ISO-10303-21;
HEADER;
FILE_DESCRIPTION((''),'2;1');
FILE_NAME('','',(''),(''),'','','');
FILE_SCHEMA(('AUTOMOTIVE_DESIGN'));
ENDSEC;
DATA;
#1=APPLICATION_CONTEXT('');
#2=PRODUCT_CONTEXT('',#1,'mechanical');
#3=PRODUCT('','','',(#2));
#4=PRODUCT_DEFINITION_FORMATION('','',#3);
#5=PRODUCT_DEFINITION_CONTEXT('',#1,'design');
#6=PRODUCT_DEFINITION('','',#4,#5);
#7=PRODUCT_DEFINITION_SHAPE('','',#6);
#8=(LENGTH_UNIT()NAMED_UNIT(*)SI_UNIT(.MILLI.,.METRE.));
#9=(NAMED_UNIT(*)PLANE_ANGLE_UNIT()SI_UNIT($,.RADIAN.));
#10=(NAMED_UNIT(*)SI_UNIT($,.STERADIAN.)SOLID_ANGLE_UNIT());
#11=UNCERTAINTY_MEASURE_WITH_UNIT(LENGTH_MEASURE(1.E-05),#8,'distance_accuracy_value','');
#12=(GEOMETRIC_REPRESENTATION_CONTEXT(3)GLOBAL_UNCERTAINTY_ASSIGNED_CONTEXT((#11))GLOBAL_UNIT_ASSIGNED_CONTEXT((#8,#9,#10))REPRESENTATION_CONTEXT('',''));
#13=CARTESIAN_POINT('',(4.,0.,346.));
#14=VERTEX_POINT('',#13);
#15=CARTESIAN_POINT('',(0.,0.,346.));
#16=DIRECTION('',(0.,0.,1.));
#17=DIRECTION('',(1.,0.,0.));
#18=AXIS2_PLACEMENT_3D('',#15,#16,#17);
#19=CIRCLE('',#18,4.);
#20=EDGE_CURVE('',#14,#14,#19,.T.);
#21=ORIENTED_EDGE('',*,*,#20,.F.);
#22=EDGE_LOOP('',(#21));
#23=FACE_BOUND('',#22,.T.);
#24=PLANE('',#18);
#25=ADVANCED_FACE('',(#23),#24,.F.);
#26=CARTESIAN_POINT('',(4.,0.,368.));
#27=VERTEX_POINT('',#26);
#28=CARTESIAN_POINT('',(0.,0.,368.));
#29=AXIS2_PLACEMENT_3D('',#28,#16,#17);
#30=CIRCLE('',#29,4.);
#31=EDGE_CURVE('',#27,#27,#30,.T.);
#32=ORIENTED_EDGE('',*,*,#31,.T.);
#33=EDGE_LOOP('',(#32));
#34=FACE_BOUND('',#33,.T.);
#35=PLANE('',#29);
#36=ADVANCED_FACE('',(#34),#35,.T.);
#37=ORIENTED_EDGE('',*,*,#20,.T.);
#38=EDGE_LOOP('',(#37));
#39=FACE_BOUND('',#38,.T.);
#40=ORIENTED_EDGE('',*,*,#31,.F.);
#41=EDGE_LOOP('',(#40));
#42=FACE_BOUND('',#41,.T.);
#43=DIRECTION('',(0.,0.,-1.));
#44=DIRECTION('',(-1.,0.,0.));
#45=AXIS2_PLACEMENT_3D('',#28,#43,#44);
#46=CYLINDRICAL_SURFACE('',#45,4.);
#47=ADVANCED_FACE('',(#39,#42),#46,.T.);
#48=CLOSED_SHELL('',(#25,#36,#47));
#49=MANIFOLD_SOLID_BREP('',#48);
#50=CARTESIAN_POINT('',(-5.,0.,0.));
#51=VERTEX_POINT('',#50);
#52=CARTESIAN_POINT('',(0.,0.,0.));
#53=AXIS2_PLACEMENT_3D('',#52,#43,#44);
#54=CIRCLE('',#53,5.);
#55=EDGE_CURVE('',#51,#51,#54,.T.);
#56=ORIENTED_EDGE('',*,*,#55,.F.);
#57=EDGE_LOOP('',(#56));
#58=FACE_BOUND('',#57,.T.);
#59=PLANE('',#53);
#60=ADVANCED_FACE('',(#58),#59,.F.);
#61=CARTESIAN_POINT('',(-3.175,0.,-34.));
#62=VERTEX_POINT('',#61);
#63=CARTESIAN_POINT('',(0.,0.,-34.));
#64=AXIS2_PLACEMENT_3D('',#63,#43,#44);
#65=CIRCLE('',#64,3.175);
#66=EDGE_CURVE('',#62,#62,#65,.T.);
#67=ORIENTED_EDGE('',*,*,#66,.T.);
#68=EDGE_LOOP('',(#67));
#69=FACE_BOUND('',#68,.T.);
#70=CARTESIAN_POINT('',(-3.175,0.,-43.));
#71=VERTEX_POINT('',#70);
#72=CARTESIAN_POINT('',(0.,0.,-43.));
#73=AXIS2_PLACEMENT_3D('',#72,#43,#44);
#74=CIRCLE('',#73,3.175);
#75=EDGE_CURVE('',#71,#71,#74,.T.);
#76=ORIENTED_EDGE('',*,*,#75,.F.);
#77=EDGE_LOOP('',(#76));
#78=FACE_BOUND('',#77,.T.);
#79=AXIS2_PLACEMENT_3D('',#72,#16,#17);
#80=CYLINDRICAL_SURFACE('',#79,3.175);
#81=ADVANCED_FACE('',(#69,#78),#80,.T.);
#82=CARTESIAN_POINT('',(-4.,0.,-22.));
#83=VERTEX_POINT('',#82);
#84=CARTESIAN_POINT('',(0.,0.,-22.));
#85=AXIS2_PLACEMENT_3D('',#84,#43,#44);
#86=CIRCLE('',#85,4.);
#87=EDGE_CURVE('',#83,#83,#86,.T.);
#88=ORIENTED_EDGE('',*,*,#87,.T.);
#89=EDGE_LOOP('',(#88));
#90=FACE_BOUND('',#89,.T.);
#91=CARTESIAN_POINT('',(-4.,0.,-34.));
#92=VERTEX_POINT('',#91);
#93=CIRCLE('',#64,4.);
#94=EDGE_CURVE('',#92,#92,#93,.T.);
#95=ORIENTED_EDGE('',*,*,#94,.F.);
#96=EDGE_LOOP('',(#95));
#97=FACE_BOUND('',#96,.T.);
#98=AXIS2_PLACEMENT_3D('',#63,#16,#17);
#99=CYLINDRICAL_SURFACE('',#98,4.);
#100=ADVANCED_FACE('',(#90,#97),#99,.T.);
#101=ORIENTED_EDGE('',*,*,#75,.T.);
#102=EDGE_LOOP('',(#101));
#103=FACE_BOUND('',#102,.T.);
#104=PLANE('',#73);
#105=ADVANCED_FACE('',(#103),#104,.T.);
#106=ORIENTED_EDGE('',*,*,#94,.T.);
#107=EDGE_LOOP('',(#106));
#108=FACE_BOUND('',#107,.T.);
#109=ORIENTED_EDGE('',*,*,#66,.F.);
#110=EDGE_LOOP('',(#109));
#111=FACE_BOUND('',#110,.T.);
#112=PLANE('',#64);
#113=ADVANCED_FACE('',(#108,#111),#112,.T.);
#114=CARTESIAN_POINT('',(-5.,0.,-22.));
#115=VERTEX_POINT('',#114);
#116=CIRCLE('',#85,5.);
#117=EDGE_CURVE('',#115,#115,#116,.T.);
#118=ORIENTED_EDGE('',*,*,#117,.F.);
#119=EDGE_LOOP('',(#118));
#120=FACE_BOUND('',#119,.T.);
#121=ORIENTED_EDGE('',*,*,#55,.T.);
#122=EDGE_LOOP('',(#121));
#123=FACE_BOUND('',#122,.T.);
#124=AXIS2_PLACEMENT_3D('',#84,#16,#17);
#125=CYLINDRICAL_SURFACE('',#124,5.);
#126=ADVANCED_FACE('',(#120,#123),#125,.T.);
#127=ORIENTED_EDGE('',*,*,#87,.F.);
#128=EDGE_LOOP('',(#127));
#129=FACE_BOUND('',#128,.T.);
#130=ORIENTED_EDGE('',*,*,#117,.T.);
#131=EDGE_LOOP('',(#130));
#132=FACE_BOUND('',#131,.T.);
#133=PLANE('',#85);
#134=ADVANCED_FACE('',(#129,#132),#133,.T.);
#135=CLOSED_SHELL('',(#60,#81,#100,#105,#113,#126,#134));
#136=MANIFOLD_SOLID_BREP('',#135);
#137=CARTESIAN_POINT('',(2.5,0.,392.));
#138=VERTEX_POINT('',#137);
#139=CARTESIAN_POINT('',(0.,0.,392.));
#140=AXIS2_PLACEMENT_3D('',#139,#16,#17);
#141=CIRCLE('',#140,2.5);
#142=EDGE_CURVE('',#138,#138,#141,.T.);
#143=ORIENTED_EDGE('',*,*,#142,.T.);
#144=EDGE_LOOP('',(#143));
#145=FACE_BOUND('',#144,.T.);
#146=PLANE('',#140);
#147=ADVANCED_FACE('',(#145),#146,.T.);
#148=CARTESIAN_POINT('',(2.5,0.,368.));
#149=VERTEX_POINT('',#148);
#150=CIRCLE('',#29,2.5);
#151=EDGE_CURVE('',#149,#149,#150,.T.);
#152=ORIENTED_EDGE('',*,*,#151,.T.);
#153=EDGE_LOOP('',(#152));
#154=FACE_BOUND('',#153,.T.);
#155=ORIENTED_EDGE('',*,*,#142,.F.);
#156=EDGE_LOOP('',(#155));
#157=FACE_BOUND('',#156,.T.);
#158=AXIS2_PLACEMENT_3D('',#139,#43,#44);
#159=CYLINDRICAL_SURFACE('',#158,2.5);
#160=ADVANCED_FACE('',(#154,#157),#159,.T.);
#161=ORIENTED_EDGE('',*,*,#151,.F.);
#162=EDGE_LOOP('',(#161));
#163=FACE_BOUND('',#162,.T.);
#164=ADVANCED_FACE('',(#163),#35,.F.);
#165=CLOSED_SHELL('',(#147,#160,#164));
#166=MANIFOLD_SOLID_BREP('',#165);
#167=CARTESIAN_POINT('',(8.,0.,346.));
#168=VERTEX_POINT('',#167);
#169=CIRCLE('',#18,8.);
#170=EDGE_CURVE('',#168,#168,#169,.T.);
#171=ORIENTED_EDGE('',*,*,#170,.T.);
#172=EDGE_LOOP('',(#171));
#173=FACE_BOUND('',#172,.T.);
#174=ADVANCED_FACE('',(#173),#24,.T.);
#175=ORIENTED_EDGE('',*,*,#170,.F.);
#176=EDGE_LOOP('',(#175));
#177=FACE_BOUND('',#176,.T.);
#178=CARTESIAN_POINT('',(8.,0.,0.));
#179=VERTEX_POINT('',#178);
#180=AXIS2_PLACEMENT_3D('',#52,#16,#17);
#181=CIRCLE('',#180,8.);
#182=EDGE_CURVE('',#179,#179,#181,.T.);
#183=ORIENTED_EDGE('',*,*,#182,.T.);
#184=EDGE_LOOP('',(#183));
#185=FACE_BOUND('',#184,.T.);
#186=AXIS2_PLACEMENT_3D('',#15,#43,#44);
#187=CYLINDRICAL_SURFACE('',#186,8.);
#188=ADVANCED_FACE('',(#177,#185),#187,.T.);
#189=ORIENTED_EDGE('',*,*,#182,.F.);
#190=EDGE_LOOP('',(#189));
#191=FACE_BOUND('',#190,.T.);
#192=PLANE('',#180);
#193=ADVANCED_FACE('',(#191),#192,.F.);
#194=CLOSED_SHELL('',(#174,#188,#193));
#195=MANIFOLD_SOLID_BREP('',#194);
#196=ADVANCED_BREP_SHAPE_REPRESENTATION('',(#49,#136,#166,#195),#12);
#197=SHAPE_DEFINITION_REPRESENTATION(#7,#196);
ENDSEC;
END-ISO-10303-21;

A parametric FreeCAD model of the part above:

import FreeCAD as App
import Part
import Sketcher

V = App.Vector

doc = App.newDocument("Part")
body = doc.addObject("PartDesign::Body", "Body")

# Sketch on XY plane
sketch1 = body.newObject("Sketcher::SketchObject", "Sketch")
sketch1.AttachmentSupport = (doc.getObject("XY_Plane"), [""])
sketch1.MapMode = "FlatFace"
sketch1.addGeometry(Part.Circle(V(0, 0, 0), V(0, 0, 1), 8), False)
sketch1.addConstraint(Sketcher.Constraint("Coincident", 0, 3, -1, 1))
sketch1.addConstraint(Sketcher.Constraint("Diameter", 0, 16.0))
pad1 = body.newObject("PartDesign::Pad", "Pad")
pad1.Profile = sketch1
pad1.Length = 346
body2 = doc.addObject("PartDesign::Body", "Body001")

# Sketch on XY plane
sketch2 = body2.newObject("Sketcher::SketchObject", "Sketch001")
sketch2.AttachmentSupport = (doc.getObject("XY_Plane001"), [""])
sketch2.MapMode = "FlatFace"
sketch2.AttachmentOffset = App.Placement(V(0, 0, 346), App.Rotation())
sketch2.addGeometry(Part.Circle(V(0, 0, 0), V(0, 0, 1), 4), False)
sketch2.addConstraint(Sketcher.Constraint("Coincident", 0, 3, -1, 1))
sketch2.addConstraint(Sketcher.Constraint("Diameter", 0, 8.0))
pad2 = body2.newObject("PartDesign::Pad", "Pad001")
pad2.Profile = sketch2
pad2.Length = 22
body3 = doc.addObject("PartDesign::Body", "Body002")

# Sketch on XY plane
sketch3 = body3.newObject("Sketcher::SketchObject", "Sketch002")
sketch3.AttachmentSupport = (doc.getObject("XY_Plane002"), [""])
sketch3.MapMode = "FlatFace"
sketch3.addGeometry(Part.Circle(V(0, 0, 0), V(0, 0, 1), 5), False)
sketch3.addConstraint(Sketcher.Constraint("Coincident", 0, 3, -1, 1))
sketch3.addConstraint(Sketcher.Constraint("Diameter", 0, 10.0))
pad3 = body3.newObject("PartDesign::Pad", "Pad002")
pad3.Profile = sketch3
pad3.Length = 22
pad3.Reversed = True

# Sketch on XY plane
sketch4 = body3.newObject("Sketcher::SketchObject", "Sketch003")
sketch4.AttachmentSupport = (doc.getObject("XY_Plane002"), [""])
sketch4.MapMode = "FlatFace"
sketch4.AttachmentOffset = App.Placement(V(0, 0, -22), App.Rotation())
sketch4.addGeometry(Part.Circle(V(0, 0, 0), V(0, 0, 1), 4), False)
sketch4.addConstraint(Sketcher.Constraint("Coincident", 0, 3, -1, 1))
sketch4.addConstraint(Sketcher.Constraint("Diameter", 0, 8.0))
pad4 = body3.newObject("PartDesign::Pad", "Pad003")
pad4.Profile = sketch4
pad4.Length = 12
pad4.Reversed = True

# Sketch on XY plane
sketch5 = body3.newObject("Sketcher::SketchObject", "Sketch004")
sketch5.AttachmentSupport = (doc.getObject("XY_Plane002"), [""])
sketch5.MapMode = "FlatFace"
sketch5.AttachmentOffset = App.Placement(V(0, 0, -34), App.Rotation())
sketch5.addGeometry(Part.Circle(V(0, 0, 0), V(0, 0, 1), 3.2), False)
sketch5.addConstraint(Sketcher.Constraint("Coincident", 0, 3, -1, 1))
sketch5.addConstraint(Sketcher.Constraint("Diameter", 0, 6.35))
pad5 = body3.newObject("PartDesign::Pad", "Pad004")
pad5.Profile = sketch5
pad5.Length = 9
pad5.Reversed = True
body4 = doc.addObject("PartDesign::Body", "Body003")

# Sketch on XY plane
sketch6 = body4.newObject("Sketcher::SketchObject", "Sketch005")
sketch6.AttachmentSupport = (doc.getObject("XY_Plane003"), [""])
sketch6.MapMode = "FlatFace"
sketch6.AttachmentOffset = App.Placement(V(0, 0, 368), App.Rotation())
sketch6.addGeometry(Part.Circle(V(0, 0, 0), V(0, 0, 1), 2.5), False)
sketch6.addConstraint(Sketcher.Constraint("Coincident", 0, 3, -1, 1))
sketch6.addConstraint(Sketcher.Constraint("Diameter", 0, 5.0))
pad6 = body4.newObject("PartDesign::Pad", "Pad005")
pad6.Profile = sketch6
pad6.Length = 24

doc.recompute()
